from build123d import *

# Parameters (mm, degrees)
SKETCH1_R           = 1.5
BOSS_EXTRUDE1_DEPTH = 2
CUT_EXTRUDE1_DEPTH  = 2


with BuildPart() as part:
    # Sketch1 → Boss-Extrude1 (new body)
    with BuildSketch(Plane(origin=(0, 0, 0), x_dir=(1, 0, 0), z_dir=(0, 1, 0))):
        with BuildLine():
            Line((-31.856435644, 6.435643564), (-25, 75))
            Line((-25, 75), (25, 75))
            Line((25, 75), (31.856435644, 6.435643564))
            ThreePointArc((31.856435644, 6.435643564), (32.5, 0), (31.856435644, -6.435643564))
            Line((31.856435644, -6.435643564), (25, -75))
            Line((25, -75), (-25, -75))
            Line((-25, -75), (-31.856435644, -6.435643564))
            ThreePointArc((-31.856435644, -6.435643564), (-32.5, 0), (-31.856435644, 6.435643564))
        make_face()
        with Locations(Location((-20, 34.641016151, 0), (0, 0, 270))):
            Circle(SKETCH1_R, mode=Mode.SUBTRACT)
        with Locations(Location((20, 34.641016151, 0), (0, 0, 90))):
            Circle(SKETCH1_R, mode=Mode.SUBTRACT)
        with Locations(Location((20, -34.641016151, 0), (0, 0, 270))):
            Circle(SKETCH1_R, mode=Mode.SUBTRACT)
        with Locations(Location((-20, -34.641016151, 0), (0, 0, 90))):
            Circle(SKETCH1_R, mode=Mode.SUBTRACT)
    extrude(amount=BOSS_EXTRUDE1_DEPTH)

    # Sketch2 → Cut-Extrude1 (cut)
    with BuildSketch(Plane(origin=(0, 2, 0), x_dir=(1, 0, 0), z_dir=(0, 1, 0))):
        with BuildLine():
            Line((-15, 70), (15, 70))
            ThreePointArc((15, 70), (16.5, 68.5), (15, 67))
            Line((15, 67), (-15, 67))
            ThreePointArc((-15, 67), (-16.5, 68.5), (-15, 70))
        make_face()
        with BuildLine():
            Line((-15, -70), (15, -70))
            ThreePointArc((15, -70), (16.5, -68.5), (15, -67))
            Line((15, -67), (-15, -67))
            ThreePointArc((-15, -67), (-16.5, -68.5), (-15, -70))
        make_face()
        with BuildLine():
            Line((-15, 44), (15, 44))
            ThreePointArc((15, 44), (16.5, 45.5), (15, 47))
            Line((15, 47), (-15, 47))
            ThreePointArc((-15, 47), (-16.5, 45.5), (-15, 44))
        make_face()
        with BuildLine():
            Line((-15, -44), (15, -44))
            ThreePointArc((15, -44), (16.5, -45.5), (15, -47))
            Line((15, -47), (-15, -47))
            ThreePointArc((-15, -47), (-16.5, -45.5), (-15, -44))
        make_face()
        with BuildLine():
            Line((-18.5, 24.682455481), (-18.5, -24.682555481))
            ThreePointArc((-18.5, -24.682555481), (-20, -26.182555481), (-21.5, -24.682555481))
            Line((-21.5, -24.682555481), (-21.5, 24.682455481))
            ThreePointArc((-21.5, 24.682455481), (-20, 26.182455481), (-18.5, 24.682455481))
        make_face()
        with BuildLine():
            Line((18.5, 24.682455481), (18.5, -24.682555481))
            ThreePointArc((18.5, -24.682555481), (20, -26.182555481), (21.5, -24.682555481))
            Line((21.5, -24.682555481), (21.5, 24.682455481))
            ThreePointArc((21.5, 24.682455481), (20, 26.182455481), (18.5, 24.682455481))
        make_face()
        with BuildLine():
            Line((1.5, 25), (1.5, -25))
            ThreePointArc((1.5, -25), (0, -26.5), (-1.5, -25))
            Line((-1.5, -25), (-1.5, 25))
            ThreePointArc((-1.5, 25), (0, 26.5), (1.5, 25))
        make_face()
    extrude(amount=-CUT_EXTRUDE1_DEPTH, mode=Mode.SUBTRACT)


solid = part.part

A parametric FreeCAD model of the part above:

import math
import FreeCAD as App
import Part
import Sketcher

V = App.Vector

doc = App.newDocument("Part")
body = doc.addObject("PartDesign::Body", "Body")

# Sketch on XZ plane
sketch1 = body.newObject("Sketcher::SketchObject", "Sketch")
sketch1.AttachmentSupport = (doc.getObject("XZ_Plane"), [""])
sketch1.MapMode = "FlatFace"
sketch1.addGeometry(Part.LineSegment(V(-25, -75, 0), V(-31.9, -6.4, 0)), False)
sketch1.addGeometry(Part.ArcOfCircle(Part.Circle(V(0, 0, 0), V(0, 0, 1), 32.5), math.radians(169), math.radians(191)), False)
sketch1.addGeometry(Part.LineSegment(V(-31.9, 6.4, 0), V(-25, 75, 0)), False)
sketch1.addGeometry(Part.LineSegment(V(-25, 75, 0), V(25, 75, 0)), False)
sketch1.addGeometry(Part.LineSegment(V(25, 75, 0), V(31.9, 6.4, 0)), False)
sketch1.addGeometry(Part.ArcOfCircle(Part.Circle(V(0, 0, 0), V(0, 0, 1), 32.5), math.radians(-11), math.radians(11)), False)
sketch1.addGeometry(Part.LineSegment(V(31.9, -6.4, 0), V(25, -75, 0)), False)
sketch1.addGeometry(Part.LineSegment(V(25, -75, 0), V(-25, -75, 0)), False)
sketch1.addGeometry(Part.Circle(V(20, 34.6, 0), V(0, 0, 1), 1.5), False)
sketch1.addGeometry(Part.Circle(V(-20, 34.6, 0), V(0, 0, 1), 1.5), False)
sketch1.addGeometry(Part.Circle(V(20, -34.6, 0), V(0, 0, 1), 1.5), False)
sketch1.addGeometry(Part.Circle(V(-20, -34.6, 0), V(0, 0, 1), 1.5), False)
sketch1.addConstraint(Sketcher.Constraint("Coincident", 0, 2, 1, 2))
sketch1.addConstraint(Sketcher.Constraint("Coincident", 1, 1, 2, 1))
sketch1.addConstraint(Sketcher.Constraint("Coincident", 2, 2, 3, 1))
sketch1.addConstraint(Sketcher.Constraint("Coincident", 3, 2, 4, 1))
sketch1.addConstraint(Sketcher.Constraint("Coincident", 4, 2, 5, 2))
sketch1.addConstraint(Sketcher.Constraint("Coincident", 5, 1, 6, 1))
sketch1.addConstraint(Sketcher.Constraint("Coincident", 6, 2, 7, 1))
sketch1.addConstraint(Sketcher.Constraint("Coincident", 7, 2, 0, 1))
sketch1.addConstraint(Sketcher.Constraint("Horizontal", 3))
sketch1.addConstraint(Sketcher.Constraint("Horizontal", 7))
sketch1.addConstraint(Sketcher.Constraint("Coincident", 1, 3, -1, 1))
sketch1.addConstraint(Sketcher.Constraint("Coincident", 5, 3, -1, 1))
sketch1.addConstraint(Sketcher.Constraint("Equal", 1, 5))
sketch1.addConstraint(Sketcher.Constraint("Equal", 8, 9))
sketch1.addConstraint(Sketcher.Constraint("Equal", 9, 10))
sketch1.addConstraint(Sketcher.Constraint("Equal", 10, 11))
sketch1.addConstraint(Sketcher.Constraint("Symmetric", 9, 3, 10, 3, -1, 1))
sketch1.addConstraint(Sketcher.Constraint("Symmetric", 8, 3, 11, 3, -1, 1))
sketch1.addConstraint(Sketcher.Constraint("Symmetric", 2, 2, 6, 2, -1, 1))
sketch1.addConstraint(Sketcher.Constraint("Symmetric", 8, 3, 9, 3, -2))
sketch1.addConstraint(Sketcher.Constraint("Parallel", 0, 4))
sketch1.addConstraint(Sketcher.Constraint("Parallel", 2, 6))
sketch1.addConstraint(Sketcher.Constraint("Horizontal", 1, 1, 4, 2))
sketch1.addConstraint(Sketcher.Constraint("Horizontal", 0, 2, 5, 1))
sketch1.addConstraint(Sketcher.Constraint("Vertical", 3, 2, 6, 2))
sketch1.addConstraint(Sketcher.Constraint("Diameter", 8, 3.0))
sketch1.addConstraint(Sketcher.Constraint("Radius", 1, 32.5))
sketch1.addConstraint(Sketcher.Constraint("DistanceX", 3, 1, 3, 2, 50.0))
sketch1.addConstraint(Sketcher.Constraint("DistanceX", -1, 1, 8, 3, 20.0))
sketch1.addConstraint(Sketcher.Constraint("DistanceY", -1, 1, 2, 2, 75.0))
sketch1.addConstraint(Sketcher.Constraint("DistanceY", 0, 2, 9, 3, 41.07666))
sketch1.addConstraint(Sketcher.Constraint("Distance", 0, 68.906325))
pad1 = body.newObject("PartDesign::Pad", "Pad")
pad1.Profile = sketch1
pad1.Length = 2
pad1.Reversed = True

# Sketch on XZ plane
sketch2 = body.newObject("Sketcher::SketchObject", "Sketch001")
sketch2.AttachmentSupport = (doc.getObject("XZ_Plane"), [""])
sketch2.MapMode = "FlatFace"
sketch2.AttachmentOffset = App.Placement(V(0, 0, -2), App.Rotation())
sketch2.addGeometry(Part.LineSegment(V(15, -70, 0), V(-15, -70, 0)), False)
sketch2.addGeometry(Part.ArcOfCircle(Part.Circle(V(-15, -68.5, 0), V(0, 0, 1), 1.5), math.radians(90), math.radians(270)), False)
sketch2.addGeometry(Part.LineSegment(V(-15, -67, 0), V(15, -67, 0)), False)
sketch2.addGeometry(Part.ArcOfCircle(Part.Circle(V(15, -68.5, 0), V(0, 0, 1), 1.5), math.radians(-90), math.radians(90)), False)
sketch2.addGeometry(Part.LineSegment(V(-15, 70, 0), V(15, 70, 0)), False)
sketch2.addGeometry(Part.ArcOfCircle(Part.Circle(V(15, 68.5, 0), V(0, 0, 1), 1.5), math.radians(-90), math.radians(90)), False)
sketch2.addGeometry(Part.LineSegment(V(15, 67, 0), V(-15, 67, 0)), False)
sketch2.addGeometry(Part.ArcOfCircle(Part.Circle(V(-15, 68.5, 0), V(0, 0, 1), 1.5), math.radians(90), math.radians(270)), False)
sketch2.addGeometry(Part.LineSegment(V(-15, -44, 0), V(15, -44, 0)), False)
sketch2.addGeometry(Part.ArcOfCircle(Part.Circle(V(15, -45.5, 0), V(0, 0, 1), 1.5), math.radians(-90), math.radians(90)), False)
sketch2.addGeometry(Part.LineSegment(V(15, -47, 0), V(-15, -47, 0)), False)
sketch2.addGeometry(Part.ArcOfCircle(Part.Circle(V(-15, -45.5, 0), V(0, 0, 1), 1.5), math.radians(90), math.radians(270)), False)
sketch2.addGeometry(Part.LineSegment(V(15, 44, 0), V(-15, 44, 0)), False)
sketch2.addGeometry(Part.ArcOfCircle(Part.Circle(V(-15, 45.5, 0), V(0, 0, 1), 1.5), math.radians(90), math.radians(270)), False)
sketch2.addGeometry(Part.LineSegment(V(-15, 47, 0), V(15, 47, 0)), False)
sketch2.addGeometry(Part.ArcOfCircle(Part.Circle(V(15, 45.5, 0), V(0, 0, 1), 1.5), math.radians(-90), math.radians(90)), False)
sketch2.addGeometry(Part.LineSegment(V(-18.5, 24.7, 0), V(-18.5, -24.7, 0)), False)
sketch2.addGeometry(Part.ArcOfCircle(Part.Circle(V(-20, -24.7, 0), V(0, 0, 1), 1.5), math.radians(180), math.radians(360)), False)
sketch2.addGeometry(Part.LineSegment(V(-21.5, -24.7, 0), V(-21.5, 24.7, 0)), False)
sketch2.addGeometry(Part.ArcOfCircle(Part.Circle(V(-20, 24.7, 0), V(0, 0, 1), 1.5), math.radians(0), math.radians(180)), False)
sketch2.addGeometry(Part.LineSegment(V(18.5, -24.7, 0), V(18.5, 24.7, 0)), False)
sketch2.addGeometry(Part.ArcOfCircle(Part.Circle(V(20, 24.7, 0), V(0, 0, 1), 1.5), math.radians(0), math.radians(180)), False)
sketch2.addGeometry(Part.LineSegment(V(21.5, 24.7, 0), V(21.5, -24.7, 0)), False)
sketch2.addGeometry(Part.ArcOfCircle(Part.Circle(V(20, -24.7, 0), V(0, 0, 1), 1.5), math.radians(180), math.radians(360)), False)
sketch2.addGeometry(Part.LineSegment(V(1.5, 25, 0), V(1.5, -25, 0)), False)
sketch2.addGeometry(Part.ArcOfCircle(Part.Circle(V(0, -25, 0), V(0, 0, 1), 1.5), math.radians(180), math.radians(360)), False)
sketch2.addGeometry(Part.LineSegment(V(-1.5, -25, 0), V(-1.5, 25, 0)), False)
sketch2.addGeometry(Part.ArcOfCircle(Part.Circle(V(0, 25, 0), V(0, 0, 1), 1.5), math.radians(0), math.radians(180)), False)
sketch2.addConstraint(Sketcher.Constraint("Tangent", 0, 2, 1, 2))
sketch2.addConstraint(Sketcher.Constraint("Tangent", 1, 1, 2, 1))
sketch2.addConstraint(Sketcher.Constraint("Tangent", 2, 2, 3, 2))
sketch2.addConstraint(Sketcher.Constraint("Tangent", 3, 1, 0, 1))
sketch2.addConstraint(Sketcher.Constraint("Tangent", 4, 2, 5, 2))
sketch2.addConstraint(Sketcher.Constraint("Tangent", 5, 1, 6, 1))
sketch2.addConstraint(Sketcher.Constraint("Tangent", 6, 2, 7, 2))
sketch2.addConstraint(Sketcher.Constraint("Tangent", 7, 1, 4, 1))
sketch2.addConstraint(Sketcher.Constraint("Tangent", 8, 2, 9, 2))
sketch2.addConstraint(Sketcher.Constraint("Tangent", 9, 1, 10, 1))
sketch2.addConstraint(Sketcher.Constraint("Tangent", 10, 2, 11, 2))
sketch2.addConstraint(Sketcher.Constraint("Tangent", 11, 1, 8, 1))
sketch2.addConstraint(Sketcher.Constraint("Tangent", 12, 2, 13, 2))
sketch2.addConstraint(Sketcher.Constraint("Tangent", 13, 1, 14, 1))
sketch2.addConstraint(Sketcher.Constraint("Tangent", 14, 2, 15, 2))
sketch2.addConstraint(Sketcher.Constraint("Tangent", 15, 1, 12, 1))
sketch2.addConstraint(Sketcher.Constraint("Tangent", 16, 2, 17, 2))
sketch2.addConstraint(Sketcher.Constraint("Tangent", 17, 1, 18, 1))
sketch2.addConstraint(Sketcher.Constraint("Tangent", 18, 2, 19, 2))
sketch2.addConstraint(Sketcher.Constraint("Tangent", 19, 1, 16, 1))
sketch2.addConstraint(Sketcher.Constraint("Tangent", 20, 2, 21, 2))
sketch2.addConstraint(Sketcher.Constraint("Tangent", 21, 1, 22, 1))
sketch2.addConstraint(Sketcher.Constraint("Tangent", 22, 2, 23, 2))
sketch2.addConstraint(Sketcher.Constraint("Tangent", 23, 1, 20, 1))
sketch2.addConstraint(Sketcher.Constraint("Tangent", 24, 2, 25, 2))
sketch2.addConstraint(Sketcher.Constraint("Tangent", 25, 1, 26, 1))
sketch2.addConstraint(Sketcher.Constraint("Tangent", 26, 2, 27, 2))
sketch2.addConstraint(Sketcher.Constraint("Tangent", 27, 1, 24, 1))
sketch2.addConstraint(Sketcher.Constraint("Horizontal", 0))
sketch2.addConstraint(Sketcher.Constraint("Horizontal", 2))
sketch2.addConstraint(Sketcher.Constraint("Horizontal", 4))
sketch2.addConstraint(Sketcher.Constraint("Horizontal", 6))
sketch2.addConstraint(Sketcher.Constraint("Horizontal", 8))
sketch2.addConstraint(Sketcher.Constraint("Horizontal", 10))
sketch2.addConstraint(Sketcher.Constraint("Horizontal", 12))
sketch2.addConstraint(Sketcher.Constraint("Horizontal", 14))
sketch2.addConstraint(Sketcher.Constraint("Vertical", 16))
sketch2.addConstraint(Sketcher.Constraint("Vertical", 18))
sketch2.addConstraint(Sketcher.Constraint("Vertical", 20))
sketch2.addConstraint(Sketcher.Constraint("Vertical", 22))
sketch2.addConstraint(Sketcher.Constraint("Vertical", 24))
sketch2.addConstraint(Sketcher.Constraint("Vertical", 26))
sketch2.addConstraint(Sketcher.Constraint("Equal", 3, 5))
sketch2.addConstraint(Sketcher.Constraint("Equal", 7, 9))
sketch2.addConstraint(Sketcher.Constraint("Equal", 11, 13))
sketch2.addConstraint(Sketcher.Constraint("Equal", 15, 17))
sketch2.addConstraint(Sketcher.Constraint("Equal", 19, 21))
sketch2.addConstraint(Sketcher.Constraint("Equal", 23, 25))
sketch2.addConstraint(Sketcher.Constraint("Symmetric", 1, 3, 5, 3, -1, 1))
sketch2.addConstraint(Sketcher.Constraint("Symmetric", 9, 3, 13, 3, -1, 1))
sketch2.addConstraint(Sketcher.Constraint("Symmetric", 25, 3, 27, 3, -1, 1))
sketch2.addConstraint(Sketcher.Constraint("Symmetric", 19, 3, 21, 3, -2))
sketch2.addConstraint(Sketcher.Constraint("Horizontal", 17, 3, 23, 3))
sketch2.addConstraint(Sketcher.Constraint("Vertical", 3, 3, 5, 3))
sketch2.addConstraint(Sketcher.Constraint("Vertical", 1, 3, 7, 3))
sketch2.addConstraint(Sketcher.Constraint("Vertical", 5, 3, 9, 3))
sketch2.addConstraint(Sketcher.Constraint("Vertical", 7, 3, 11, 3))
sketch2.addConstraint(Sketcher.Constraint("Vertical", 9, 3, 15, 3))
sketch2.addConstraint(Sketcher.Constraint("Radius", 1, 1.5))
sketch2.addConstraint(Sketcher.Constraint("DistanceX", 0, 2, 0, 1, 30.0))
sketch2.addConstraint(Sketcher.Constraint("DistanceY", 24, 2, 24, 1, 50.0))
sketch2.addConstraint(Sketcher.Constraint("DistanceX", 17, 3, -1, 1, 20.0))
sketch2.addConstraint(Sketcher.Constraint("DistanceY", 0, 2, -1, 1, 70.0))
sketch2.addConstraint(Sketcher.Constraint("DistanceY", 8, 2, -1, 1, 44.0))
sketch2.addConstraint(Sketcher.Constraint("DistanceY", 16, 2, 16, 1, 49.365011))
sketch2.addConstraint(Sketcher.Constraint("DistanceY", 17, 3, -1, 1, 24.682455))
pocket1 = body.newObject("PartDesign::Pocket", "Pocket")
pocket1.Profile = sketch2
pocket1.Length = 2
pocket1.Reversed = True

doc.recompute()
